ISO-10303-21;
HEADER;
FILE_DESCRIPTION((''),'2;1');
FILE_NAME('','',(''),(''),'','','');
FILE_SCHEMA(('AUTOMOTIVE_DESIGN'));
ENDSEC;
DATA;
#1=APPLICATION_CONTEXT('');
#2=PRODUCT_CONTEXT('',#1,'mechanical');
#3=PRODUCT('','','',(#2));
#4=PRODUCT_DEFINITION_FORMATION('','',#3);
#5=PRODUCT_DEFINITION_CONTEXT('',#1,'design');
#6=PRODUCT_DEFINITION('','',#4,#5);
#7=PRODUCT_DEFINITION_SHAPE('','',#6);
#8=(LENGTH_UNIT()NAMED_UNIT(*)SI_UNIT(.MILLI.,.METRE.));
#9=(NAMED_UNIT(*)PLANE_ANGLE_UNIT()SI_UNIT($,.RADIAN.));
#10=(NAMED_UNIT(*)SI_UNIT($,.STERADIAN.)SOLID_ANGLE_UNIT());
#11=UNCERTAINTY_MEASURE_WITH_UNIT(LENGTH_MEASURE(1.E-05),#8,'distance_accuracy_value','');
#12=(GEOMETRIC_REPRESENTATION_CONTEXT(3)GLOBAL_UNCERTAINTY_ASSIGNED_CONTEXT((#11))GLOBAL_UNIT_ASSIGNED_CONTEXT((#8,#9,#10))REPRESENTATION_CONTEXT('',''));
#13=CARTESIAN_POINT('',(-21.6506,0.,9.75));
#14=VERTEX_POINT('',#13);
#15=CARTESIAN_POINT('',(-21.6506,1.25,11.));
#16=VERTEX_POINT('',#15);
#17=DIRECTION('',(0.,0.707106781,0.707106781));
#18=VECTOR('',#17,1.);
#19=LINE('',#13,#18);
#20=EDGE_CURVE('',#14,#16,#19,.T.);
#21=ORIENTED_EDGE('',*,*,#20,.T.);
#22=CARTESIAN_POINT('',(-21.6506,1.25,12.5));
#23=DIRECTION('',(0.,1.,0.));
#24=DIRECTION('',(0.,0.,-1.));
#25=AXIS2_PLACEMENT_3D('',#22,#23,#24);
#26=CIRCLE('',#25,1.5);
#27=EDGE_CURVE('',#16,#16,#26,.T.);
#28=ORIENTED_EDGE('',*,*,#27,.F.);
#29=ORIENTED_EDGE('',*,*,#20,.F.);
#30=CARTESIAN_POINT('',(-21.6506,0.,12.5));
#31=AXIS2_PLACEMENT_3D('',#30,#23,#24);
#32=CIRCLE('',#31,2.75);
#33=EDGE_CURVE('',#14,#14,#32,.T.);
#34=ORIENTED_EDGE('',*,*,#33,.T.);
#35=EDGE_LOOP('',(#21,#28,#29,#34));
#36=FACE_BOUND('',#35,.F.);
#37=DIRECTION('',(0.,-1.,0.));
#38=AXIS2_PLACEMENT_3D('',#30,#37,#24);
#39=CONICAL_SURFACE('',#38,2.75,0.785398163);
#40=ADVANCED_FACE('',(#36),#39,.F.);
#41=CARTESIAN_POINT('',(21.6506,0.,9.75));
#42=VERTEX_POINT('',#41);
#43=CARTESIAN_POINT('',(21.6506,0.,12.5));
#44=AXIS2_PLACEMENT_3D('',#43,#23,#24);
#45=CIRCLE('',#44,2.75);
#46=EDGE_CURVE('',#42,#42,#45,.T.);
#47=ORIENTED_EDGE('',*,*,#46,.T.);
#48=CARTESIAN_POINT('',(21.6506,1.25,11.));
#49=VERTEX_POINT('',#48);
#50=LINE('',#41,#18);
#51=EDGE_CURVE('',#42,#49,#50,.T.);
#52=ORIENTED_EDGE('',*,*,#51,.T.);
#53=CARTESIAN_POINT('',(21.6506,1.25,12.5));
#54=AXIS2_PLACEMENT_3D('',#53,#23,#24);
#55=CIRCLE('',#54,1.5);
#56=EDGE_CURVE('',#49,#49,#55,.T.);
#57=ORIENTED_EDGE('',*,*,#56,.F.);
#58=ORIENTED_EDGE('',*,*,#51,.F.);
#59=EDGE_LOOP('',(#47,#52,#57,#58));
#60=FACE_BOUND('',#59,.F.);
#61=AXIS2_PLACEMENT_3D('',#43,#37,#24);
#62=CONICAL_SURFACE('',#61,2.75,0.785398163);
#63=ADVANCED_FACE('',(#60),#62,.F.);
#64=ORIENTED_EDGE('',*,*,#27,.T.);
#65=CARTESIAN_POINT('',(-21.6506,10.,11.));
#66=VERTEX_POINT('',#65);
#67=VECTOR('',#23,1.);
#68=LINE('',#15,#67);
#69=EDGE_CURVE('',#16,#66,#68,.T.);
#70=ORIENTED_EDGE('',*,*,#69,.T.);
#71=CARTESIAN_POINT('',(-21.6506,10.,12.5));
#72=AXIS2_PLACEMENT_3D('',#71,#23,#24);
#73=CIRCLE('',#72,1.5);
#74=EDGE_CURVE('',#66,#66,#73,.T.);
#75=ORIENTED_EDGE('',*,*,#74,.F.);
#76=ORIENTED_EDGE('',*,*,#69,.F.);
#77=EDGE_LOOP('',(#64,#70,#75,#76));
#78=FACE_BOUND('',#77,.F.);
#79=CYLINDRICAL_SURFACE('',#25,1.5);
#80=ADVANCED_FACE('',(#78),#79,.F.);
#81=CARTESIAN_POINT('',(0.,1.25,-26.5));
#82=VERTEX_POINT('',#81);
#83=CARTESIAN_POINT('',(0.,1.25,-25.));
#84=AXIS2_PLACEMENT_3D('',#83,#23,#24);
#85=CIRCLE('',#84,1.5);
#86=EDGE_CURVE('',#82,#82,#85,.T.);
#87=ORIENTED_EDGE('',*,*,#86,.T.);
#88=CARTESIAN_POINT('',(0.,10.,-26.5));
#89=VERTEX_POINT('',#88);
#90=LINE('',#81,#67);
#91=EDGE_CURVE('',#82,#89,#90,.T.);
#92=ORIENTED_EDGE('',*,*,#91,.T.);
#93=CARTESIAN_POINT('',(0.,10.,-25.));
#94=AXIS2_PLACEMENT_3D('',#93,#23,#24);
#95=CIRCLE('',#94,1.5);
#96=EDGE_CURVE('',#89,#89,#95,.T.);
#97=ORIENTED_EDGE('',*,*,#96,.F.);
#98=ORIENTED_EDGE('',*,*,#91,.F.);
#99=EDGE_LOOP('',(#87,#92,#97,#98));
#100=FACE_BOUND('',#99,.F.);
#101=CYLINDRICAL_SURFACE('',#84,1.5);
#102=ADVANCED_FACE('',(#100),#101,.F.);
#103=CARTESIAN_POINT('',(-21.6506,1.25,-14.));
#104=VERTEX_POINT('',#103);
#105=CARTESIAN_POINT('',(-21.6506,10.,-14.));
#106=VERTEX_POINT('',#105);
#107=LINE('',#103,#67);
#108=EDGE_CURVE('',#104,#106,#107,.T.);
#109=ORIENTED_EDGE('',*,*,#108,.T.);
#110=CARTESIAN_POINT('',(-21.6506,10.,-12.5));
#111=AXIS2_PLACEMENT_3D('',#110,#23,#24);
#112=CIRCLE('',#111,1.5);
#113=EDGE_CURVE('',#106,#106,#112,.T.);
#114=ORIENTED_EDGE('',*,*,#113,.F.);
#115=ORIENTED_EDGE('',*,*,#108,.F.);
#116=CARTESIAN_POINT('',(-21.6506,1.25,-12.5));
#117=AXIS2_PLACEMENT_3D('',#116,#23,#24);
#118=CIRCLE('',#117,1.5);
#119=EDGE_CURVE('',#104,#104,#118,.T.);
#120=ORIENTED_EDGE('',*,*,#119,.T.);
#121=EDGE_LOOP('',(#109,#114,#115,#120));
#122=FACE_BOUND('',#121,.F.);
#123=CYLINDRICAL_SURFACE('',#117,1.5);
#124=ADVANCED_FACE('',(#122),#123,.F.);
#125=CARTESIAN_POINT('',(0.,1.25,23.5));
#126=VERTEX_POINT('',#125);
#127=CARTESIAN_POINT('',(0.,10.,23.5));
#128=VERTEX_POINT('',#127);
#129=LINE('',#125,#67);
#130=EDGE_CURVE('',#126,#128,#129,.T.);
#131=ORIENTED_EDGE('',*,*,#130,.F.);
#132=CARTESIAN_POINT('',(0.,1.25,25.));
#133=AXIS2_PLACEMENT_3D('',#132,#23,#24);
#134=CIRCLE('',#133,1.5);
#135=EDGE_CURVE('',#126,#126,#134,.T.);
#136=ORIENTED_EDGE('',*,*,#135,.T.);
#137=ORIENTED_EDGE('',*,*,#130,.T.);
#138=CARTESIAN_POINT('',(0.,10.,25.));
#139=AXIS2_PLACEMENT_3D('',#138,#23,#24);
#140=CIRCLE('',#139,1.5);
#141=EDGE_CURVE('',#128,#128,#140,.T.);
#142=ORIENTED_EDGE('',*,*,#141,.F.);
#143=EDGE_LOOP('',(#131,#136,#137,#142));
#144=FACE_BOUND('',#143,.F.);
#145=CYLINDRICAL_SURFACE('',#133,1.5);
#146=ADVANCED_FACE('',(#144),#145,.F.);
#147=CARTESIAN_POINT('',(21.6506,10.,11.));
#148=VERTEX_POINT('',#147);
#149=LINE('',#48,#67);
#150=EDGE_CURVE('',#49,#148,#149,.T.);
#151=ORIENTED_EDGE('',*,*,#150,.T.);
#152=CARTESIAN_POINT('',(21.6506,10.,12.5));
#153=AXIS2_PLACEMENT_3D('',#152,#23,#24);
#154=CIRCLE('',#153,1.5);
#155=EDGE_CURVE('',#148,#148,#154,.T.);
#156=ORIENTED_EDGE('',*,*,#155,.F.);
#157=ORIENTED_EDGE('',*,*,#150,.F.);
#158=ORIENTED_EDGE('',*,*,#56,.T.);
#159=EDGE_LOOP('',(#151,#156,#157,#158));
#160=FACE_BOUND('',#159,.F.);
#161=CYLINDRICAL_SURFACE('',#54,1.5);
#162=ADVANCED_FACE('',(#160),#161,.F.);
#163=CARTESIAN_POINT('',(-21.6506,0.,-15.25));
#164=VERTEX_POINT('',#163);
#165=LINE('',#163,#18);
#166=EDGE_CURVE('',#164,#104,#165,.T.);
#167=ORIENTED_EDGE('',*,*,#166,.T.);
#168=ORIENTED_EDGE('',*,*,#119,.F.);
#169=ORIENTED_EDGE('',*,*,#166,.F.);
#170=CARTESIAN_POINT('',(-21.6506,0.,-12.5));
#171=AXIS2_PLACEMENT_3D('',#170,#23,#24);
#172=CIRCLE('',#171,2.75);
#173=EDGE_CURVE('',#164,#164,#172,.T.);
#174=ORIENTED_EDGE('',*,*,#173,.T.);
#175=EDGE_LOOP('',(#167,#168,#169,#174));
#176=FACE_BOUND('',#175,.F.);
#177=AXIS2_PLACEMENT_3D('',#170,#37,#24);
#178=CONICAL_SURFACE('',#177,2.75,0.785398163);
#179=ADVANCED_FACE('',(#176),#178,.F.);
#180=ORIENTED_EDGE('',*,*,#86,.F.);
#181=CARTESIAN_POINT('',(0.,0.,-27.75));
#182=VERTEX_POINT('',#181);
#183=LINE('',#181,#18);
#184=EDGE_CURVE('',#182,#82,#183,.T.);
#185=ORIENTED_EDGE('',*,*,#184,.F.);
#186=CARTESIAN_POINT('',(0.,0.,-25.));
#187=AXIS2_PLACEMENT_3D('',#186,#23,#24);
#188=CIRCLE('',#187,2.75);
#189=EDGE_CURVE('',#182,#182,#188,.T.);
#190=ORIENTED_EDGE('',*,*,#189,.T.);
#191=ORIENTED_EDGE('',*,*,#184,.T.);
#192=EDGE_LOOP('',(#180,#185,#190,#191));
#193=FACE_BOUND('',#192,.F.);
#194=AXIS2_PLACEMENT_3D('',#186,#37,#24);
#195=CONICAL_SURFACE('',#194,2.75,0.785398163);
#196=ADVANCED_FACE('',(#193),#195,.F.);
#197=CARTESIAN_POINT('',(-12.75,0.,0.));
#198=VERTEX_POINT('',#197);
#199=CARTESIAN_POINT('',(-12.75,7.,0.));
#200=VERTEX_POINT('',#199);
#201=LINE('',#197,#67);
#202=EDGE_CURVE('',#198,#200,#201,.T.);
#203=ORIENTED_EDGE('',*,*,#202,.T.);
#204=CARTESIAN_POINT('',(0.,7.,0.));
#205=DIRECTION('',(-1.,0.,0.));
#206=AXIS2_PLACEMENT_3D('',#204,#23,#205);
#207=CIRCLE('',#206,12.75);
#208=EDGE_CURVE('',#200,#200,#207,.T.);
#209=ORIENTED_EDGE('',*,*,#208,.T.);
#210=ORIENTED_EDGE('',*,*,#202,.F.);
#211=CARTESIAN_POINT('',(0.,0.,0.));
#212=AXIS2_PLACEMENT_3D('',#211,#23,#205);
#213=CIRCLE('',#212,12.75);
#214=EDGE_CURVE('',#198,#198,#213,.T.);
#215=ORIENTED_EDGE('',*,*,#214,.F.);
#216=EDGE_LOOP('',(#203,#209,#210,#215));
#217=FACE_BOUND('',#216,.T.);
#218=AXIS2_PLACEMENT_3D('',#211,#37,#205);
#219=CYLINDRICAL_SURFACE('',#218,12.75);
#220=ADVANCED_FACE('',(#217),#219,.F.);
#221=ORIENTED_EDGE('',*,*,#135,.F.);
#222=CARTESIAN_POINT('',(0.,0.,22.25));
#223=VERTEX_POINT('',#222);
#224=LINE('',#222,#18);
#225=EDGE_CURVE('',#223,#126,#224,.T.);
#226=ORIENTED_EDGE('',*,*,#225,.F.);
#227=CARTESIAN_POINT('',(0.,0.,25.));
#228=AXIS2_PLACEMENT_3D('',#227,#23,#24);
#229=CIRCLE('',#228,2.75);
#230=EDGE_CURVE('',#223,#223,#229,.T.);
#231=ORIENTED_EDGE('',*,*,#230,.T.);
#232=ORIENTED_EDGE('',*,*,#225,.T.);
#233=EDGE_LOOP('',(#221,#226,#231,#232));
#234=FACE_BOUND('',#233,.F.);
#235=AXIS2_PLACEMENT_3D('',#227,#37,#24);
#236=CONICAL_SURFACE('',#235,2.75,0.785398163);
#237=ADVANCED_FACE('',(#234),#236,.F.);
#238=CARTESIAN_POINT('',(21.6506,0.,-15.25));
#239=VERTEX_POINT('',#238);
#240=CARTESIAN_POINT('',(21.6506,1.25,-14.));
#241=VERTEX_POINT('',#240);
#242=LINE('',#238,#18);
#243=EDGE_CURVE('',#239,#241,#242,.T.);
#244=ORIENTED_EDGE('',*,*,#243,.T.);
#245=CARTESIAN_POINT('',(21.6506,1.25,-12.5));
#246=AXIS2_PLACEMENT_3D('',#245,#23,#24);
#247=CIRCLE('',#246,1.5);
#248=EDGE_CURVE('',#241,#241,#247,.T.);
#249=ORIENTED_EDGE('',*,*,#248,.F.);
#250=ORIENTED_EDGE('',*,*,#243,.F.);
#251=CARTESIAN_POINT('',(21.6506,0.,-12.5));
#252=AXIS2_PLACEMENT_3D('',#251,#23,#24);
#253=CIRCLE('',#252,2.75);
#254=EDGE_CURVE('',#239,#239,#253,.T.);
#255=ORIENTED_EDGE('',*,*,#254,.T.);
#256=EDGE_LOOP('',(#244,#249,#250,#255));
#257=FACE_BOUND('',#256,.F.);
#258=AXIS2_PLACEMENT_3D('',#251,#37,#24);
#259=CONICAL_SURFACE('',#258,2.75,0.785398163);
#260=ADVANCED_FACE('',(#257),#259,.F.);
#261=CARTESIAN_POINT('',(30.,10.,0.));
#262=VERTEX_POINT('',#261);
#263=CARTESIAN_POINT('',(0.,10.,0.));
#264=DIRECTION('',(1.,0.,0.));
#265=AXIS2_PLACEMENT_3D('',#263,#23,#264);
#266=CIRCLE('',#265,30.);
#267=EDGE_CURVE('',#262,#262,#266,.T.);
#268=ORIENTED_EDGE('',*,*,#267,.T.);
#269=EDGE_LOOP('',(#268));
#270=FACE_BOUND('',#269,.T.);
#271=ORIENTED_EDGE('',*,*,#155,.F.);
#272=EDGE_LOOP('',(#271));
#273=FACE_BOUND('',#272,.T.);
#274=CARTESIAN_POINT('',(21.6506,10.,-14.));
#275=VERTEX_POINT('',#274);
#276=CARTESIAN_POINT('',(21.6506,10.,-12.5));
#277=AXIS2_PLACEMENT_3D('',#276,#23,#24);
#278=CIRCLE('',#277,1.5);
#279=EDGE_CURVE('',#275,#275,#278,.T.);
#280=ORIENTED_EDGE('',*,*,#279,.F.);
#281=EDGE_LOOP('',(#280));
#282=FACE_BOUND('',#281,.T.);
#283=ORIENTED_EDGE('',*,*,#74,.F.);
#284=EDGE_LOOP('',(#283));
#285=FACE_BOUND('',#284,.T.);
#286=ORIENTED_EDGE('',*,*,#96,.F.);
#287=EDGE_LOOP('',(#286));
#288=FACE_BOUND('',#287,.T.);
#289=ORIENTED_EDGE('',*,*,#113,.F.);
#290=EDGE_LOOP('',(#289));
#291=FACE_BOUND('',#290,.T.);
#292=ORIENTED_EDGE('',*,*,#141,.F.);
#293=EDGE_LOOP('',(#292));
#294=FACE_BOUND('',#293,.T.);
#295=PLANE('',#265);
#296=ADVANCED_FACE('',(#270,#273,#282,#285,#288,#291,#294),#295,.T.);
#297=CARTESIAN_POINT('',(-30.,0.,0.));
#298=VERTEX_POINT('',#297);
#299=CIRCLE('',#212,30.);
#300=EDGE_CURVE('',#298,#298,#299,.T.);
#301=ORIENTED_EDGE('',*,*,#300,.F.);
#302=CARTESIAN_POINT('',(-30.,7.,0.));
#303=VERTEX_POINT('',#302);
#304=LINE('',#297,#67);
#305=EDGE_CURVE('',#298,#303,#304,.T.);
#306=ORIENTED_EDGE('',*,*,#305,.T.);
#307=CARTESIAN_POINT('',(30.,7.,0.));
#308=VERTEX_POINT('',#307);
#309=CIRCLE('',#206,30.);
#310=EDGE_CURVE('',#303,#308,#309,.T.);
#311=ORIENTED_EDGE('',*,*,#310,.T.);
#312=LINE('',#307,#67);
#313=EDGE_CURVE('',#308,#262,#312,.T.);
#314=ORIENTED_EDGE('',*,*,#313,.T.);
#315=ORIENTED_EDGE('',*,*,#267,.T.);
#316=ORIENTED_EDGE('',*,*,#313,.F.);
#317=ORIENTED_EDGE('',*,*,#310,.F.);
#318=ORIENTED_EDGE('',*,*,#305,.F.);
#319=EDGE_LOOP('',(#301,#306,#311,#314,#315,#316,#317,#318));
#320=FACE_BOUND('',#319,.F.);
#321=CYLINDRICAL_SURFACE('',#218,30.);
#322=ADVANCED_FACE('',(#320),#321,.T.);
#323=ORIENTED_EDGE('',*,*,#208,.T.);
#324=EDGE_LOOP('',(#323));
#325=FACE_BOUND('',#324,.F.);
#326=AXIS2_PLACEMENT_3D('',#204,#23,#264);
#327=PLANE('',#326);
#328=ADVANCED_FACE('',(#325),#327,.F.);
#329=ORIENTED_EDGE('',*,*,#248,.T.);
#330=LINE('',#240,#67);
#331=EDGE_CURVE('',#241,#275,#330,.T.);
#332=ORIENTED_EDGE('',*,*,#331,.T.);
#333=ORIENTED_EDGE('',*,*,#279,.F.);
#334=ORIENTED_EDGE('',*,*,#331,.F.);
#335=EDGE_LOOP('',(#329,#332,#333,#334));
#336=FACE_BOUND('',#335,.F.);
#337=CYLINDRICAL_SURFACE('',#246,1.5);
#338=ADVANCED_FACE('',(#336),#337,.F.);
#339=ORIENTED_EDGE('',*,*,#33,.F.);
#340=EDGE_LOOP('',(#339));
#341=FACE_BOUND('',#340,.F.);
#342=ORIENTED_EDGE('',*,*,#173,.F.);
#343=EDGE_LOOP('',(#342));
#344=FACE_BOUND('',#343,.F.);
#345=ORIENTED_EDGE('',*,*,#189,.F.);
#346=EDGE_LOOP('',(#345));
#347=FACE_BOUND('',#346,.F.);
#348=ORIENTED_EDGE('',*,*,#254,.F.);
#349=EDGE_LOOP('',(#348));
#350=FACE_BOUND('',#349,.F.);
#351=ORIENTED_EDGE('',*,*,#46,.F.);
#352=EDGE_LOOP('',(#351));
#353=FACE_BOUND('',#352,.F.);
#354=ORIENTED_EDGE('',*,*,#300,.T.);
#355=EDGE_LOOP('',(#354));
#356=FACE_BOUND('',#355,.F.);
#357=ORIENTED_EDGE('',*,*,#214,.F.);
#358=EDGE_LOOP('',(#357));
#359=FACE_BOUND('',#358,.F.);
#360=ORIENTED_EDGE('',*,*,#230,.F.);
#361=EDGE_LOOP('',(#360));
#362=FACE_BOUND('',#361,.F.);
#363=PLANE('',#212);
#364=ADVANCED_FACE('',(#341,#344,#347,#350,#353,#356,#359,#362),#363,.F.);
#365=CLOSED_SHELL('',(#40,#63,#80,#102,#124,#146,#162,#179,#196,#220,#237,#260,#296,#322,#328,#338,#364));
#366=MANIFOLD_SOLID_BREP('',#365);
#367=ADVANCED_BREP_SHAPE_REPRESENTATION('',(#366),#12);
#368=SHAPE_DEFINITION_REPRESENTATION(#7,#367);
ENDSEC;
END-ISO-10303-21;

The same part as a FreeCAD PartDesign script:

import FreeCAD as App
import Part
import Sketcher
from FreeCAD import Vector
Q = App.Units.Quantity

doc = App.newDocument("Part")
body = doc.addObject("PartDesign::Body", "Body")

# Sketch on XZ plane
sketch1 = body.newObject("Sketcher::SketchObject", "Sketch")
sketch1.AttachmentSupport = (doc.getObject("XZ_Plane"), [""])
sketch1.MapMode = "FlatFace"
sketch1.addGeometry(Part.Circle(Vector(0, 0, 0), Vector(0, 0, 1), 30), False)
sketch1.addGeometry(Part.Circle(Vector(0, 0, 0), Vector(0, 0, 1), 13), False)
sketch1.addConstraint(Sketcher.Constraint("Coincident", 0, 3, -1, 1))
sketch1.addConstraint(Sketcher.Constraint("Coincident", 1, 3, -1, 1))
sketch1.addConstraint(Sketcher.Constraint("Diameter", 0, Q("60 mm")))
sketch1.addConstraint(Sketcher.Constraint("Diameter", 1, Q("25.5 mm")))
pad1 = body.newObject("PartDesign::Pad", "Pad")
pad1.Profile = sketch1
pad1.Length = 7
pad1.Reversed = True

# Sketch on XZ plane
sketch2 = body.newObject("Sketcher::SketchObject", "Sketch001")
sketch2.AttachmentSupport = (doc.getObject("XZ_Plane"), [""])
sketch2.MapMode = "FlatFace"
sketch2.AttachmentOffset = App.Placement(Vector(0, 0, -7), App.Rotation())
sketch2.addGeometry(Part.Circle(Vector(0, 0, 0), Vector(0, 0, 1), 30), False)
sketch2.addConstraint(Sketcher.Constraint("Coincident", 0, 3, -1, 1))
sketch2.addConstraint(Sketcher.Constraint("Diameter", 0, Q("60 mm")))
pad2 = body.newObject("PartDesign::Pad", "Pad001")
pad2.Profile = sketch2
pad2.Length = 3
pad2.Reversed = True

# Sketch on XZ plane
sketch3 = body.newObject("Sketcher::SketchObject", "Sketch002")
sketch3.AttachmentSupport = (doc.getObject("XZ_Plane"), [""])
sketch3.MapMode = "FlatFace"
sketch3.addGeometry(Part.Circle(Vector(0, 25, 0), Vector(0, 0, 1), 1.5), False)
sketch3.addGeometry(Part.Circle(Vector(-21.7, 12.5, 0), Vector(0, 0, 1), 1.5), False)
sketch3.addGeometry(Part.Circle(Vector(-21.7, -12.5, 0), Vector(0, 0, 1), 1.5), False)
sketch3.addGeometry(Part.Circle(Vector(0, -25, 0), Vector(0, 0, 1), 1.5), False)
sketch3.addGeometry(Part.Circle(Vector(21.7, -12.5, 0), Vector(0, 0, 1), 1.5), False)
sketch3.addGeometry(Part.Circle(Vector(21.7, 12.5, 0), Vector(0, 0, 1), 1.5), False)
sketch3.addConstraint(Sketcher.Constraint("Equal", 0, 1))
sketch3.addConstraint(Sketcher.Constraint("Equal", 1, 2))
sketch3.addConstraint(Sketcher.Constraint("Equal", 2, 3))
sketch3.addConstraint(Sketcher.Constraint("Equal", 3, 4))
sketch3.addConstraint(Sketcher.Constraint("Equal", 4, 5))
sketch3.addConstraint(Sketcher.Constraint("Symmetric", 0, 3, 3, 3, -1, 1))
sketch3.addConstraint(Sketcher.Constraint("Symmetric", 1, 3, 4, 3, -1, 1))
sketch3.addConstraint(Sketcher.Constraint("Symmetric", 2, 3, 5, 3, -1, 1))
sketch3.addConstraint(Sketcher.Constraint("Symmetric", 2, 3, 4, 3, -2))
sketch3.addConstraint(Sketcher.Constraint("PointOnObject", 0, 3, -2))
sketch3.addConstraint(Sketcher.Constraint("Diameter", 0, Q("3 mm")))
sketch3.addConstraint(Sketcher.Constraint("DistanceY", -1, 1, 0, 3, Q("25 mm")))
sketch3.addConstraint(Sketcher.Constraint("DistanceY", 2, 3, 1, 3, Q("25 mm")))
sketch3.addConstraint(Sketcher.Constraint("DistanceX", 1, 3, -1, 1, Q("21.6506 mm")))
doc.recompute()
hole = body.newObject("PartDesign::Hole", "Hole")
hole.Profile = sketch3
hole.ThreadType = "None"
hole.Diameter = 3
hole.DepthType = "ThroughAll"
hole.HoleCutType = "Countersink"
hole.HoleCutDiameter = 5.5
hole.HoleCutCountersinkAngle = 90

doc.recompute()
